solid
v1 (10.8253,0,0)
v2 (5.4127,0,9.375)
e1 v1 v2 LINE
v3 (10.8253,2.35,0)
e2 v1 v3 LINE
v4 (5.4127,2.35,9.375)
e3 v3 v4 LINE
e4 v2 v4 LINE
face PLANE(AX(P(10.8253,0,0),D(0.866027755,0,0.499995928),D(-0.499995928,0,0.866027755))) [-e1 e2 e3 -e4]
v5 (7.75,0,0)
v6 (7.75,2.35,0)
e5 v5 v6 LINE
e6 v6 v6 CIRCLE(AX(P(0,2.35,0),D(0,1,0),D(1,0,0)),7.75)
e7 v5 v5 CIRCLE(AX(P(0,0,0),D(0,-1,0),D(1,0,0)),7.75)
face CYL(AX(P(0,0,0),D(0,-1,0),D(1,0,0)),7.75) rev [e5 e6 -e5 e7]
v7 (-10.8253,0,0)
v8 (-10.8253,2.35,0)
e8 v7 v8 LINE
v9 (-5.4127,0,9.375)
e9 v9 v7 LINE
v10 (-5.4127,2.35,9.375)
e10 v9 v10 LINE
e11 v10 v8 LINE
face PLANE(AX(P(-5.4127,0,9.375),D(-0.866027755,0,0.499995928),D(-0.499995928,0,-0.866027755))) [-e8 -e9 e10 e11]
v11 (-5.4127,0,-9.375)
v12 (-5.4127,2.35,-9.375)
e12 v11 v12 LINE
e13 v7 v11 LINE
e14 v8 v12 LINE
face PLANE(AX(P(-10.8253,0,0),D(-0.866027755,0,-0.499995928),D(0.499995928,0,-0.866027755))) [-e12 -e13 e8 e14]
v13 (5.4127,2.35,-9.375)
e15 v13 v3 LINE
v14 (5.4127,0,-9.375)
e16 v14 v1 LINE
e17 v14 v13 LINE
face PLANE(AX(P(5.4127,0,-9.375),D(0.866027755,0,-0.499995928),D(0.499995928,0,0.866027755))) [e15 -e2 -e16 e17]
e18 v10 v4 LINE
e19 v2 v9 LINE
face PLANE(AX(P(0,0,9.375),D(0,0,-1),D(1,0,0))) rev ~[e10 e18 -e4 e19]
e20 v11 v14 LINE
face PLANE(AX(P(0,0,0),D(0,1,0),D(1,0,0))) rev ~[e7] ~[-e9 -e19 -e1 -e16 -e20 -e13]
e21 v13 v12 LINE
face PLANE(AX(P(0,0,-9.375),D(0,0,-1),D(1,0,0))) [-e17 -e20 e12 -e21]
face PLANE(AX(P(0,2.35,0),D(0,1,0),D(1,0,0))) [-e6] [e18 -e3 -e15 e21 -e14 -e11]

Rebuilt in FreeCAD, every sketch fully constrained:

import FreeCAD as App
import Part
import Sketcher

V = App.Vector
Q = App.Units.Quantity


def add_polygon(sketch, points):
    """Adds a closed chain of lines whose ends are joined by coincident constraints."""
    first, n = sketch.GeometryCount, len(points)
    for a, b in zip(points, points[1:] + points[:1]):
        sketch.addGeometry(Part.LineSegment(App.Vector(*a, 0), App.Vector(*b, 0)), False)
    for i in range(n):
        sketch.addConstraint(Sketcher.Constraint("Coincident", first + i, 2, first + (i + 1) % n, 1))

doc = App.newDocument("Part")
body = doc.addObject("PartDesign::Body", "Body")

sketch1 = doc.addObject("Sketcher::SketchObject", "Sketch")
body.addObject(sketch1)
sketch1.AttachmentSupport = (doc.XZ_Plane, [""])
sketch1.MapMode = "FlatFace"
add_polygon(sketch1, [(5.4127, -9.375), (-5.4127, -9.375), (-10.8253, 0), (-5.4127, 9.375), (5.4127, 9.375), (10.8253, 0)])
sketch1.addGeometry(Part.Circle(V(0, 0, 0), V(0, 0, 1), 7.75), False)
sketch1.addConstraint([
    Sketcher.Constraint("Horizontal", 0),
    Sketcher.Constraint("Horizontal", 3),
    Sketcher.Constraint("Coincident", 6, 3, -1, 1),
    Sketcher.Constraint("Symmetric", 0, 2, 3, 2, -1, 1),
    Sketcher.Constraint("Symmetric", 1, 2, 4, 2, -1, 1),
    Sketcher.Constraint("PointOnObject", 1, 2, -1),
    Sketcher.Constraint("Parallel", 2, 5),
    Sketcher.Constraint("Vertical", 0, 2, 2, 2),
    Sketcher.Constraint("Diameter", 6, 15.5),
    Sketcher.Constraint("Angle", 1, Q("119.9997 deg")),
    Sketcher.Constraint("DistanceY", 0, 2, 2, 2, 18.75),
    Sketcher.Constraint("DistanceX", 0, 2, 0, 1, 10.8254),
])
pad1 = doc.addObject("PartDesign::Pad", "Pad")
body.addObject(pad1)
pad1.Profile = sketch1
pad1.Length = 2.35
pad1.Reversed = True

doc.recompute()
